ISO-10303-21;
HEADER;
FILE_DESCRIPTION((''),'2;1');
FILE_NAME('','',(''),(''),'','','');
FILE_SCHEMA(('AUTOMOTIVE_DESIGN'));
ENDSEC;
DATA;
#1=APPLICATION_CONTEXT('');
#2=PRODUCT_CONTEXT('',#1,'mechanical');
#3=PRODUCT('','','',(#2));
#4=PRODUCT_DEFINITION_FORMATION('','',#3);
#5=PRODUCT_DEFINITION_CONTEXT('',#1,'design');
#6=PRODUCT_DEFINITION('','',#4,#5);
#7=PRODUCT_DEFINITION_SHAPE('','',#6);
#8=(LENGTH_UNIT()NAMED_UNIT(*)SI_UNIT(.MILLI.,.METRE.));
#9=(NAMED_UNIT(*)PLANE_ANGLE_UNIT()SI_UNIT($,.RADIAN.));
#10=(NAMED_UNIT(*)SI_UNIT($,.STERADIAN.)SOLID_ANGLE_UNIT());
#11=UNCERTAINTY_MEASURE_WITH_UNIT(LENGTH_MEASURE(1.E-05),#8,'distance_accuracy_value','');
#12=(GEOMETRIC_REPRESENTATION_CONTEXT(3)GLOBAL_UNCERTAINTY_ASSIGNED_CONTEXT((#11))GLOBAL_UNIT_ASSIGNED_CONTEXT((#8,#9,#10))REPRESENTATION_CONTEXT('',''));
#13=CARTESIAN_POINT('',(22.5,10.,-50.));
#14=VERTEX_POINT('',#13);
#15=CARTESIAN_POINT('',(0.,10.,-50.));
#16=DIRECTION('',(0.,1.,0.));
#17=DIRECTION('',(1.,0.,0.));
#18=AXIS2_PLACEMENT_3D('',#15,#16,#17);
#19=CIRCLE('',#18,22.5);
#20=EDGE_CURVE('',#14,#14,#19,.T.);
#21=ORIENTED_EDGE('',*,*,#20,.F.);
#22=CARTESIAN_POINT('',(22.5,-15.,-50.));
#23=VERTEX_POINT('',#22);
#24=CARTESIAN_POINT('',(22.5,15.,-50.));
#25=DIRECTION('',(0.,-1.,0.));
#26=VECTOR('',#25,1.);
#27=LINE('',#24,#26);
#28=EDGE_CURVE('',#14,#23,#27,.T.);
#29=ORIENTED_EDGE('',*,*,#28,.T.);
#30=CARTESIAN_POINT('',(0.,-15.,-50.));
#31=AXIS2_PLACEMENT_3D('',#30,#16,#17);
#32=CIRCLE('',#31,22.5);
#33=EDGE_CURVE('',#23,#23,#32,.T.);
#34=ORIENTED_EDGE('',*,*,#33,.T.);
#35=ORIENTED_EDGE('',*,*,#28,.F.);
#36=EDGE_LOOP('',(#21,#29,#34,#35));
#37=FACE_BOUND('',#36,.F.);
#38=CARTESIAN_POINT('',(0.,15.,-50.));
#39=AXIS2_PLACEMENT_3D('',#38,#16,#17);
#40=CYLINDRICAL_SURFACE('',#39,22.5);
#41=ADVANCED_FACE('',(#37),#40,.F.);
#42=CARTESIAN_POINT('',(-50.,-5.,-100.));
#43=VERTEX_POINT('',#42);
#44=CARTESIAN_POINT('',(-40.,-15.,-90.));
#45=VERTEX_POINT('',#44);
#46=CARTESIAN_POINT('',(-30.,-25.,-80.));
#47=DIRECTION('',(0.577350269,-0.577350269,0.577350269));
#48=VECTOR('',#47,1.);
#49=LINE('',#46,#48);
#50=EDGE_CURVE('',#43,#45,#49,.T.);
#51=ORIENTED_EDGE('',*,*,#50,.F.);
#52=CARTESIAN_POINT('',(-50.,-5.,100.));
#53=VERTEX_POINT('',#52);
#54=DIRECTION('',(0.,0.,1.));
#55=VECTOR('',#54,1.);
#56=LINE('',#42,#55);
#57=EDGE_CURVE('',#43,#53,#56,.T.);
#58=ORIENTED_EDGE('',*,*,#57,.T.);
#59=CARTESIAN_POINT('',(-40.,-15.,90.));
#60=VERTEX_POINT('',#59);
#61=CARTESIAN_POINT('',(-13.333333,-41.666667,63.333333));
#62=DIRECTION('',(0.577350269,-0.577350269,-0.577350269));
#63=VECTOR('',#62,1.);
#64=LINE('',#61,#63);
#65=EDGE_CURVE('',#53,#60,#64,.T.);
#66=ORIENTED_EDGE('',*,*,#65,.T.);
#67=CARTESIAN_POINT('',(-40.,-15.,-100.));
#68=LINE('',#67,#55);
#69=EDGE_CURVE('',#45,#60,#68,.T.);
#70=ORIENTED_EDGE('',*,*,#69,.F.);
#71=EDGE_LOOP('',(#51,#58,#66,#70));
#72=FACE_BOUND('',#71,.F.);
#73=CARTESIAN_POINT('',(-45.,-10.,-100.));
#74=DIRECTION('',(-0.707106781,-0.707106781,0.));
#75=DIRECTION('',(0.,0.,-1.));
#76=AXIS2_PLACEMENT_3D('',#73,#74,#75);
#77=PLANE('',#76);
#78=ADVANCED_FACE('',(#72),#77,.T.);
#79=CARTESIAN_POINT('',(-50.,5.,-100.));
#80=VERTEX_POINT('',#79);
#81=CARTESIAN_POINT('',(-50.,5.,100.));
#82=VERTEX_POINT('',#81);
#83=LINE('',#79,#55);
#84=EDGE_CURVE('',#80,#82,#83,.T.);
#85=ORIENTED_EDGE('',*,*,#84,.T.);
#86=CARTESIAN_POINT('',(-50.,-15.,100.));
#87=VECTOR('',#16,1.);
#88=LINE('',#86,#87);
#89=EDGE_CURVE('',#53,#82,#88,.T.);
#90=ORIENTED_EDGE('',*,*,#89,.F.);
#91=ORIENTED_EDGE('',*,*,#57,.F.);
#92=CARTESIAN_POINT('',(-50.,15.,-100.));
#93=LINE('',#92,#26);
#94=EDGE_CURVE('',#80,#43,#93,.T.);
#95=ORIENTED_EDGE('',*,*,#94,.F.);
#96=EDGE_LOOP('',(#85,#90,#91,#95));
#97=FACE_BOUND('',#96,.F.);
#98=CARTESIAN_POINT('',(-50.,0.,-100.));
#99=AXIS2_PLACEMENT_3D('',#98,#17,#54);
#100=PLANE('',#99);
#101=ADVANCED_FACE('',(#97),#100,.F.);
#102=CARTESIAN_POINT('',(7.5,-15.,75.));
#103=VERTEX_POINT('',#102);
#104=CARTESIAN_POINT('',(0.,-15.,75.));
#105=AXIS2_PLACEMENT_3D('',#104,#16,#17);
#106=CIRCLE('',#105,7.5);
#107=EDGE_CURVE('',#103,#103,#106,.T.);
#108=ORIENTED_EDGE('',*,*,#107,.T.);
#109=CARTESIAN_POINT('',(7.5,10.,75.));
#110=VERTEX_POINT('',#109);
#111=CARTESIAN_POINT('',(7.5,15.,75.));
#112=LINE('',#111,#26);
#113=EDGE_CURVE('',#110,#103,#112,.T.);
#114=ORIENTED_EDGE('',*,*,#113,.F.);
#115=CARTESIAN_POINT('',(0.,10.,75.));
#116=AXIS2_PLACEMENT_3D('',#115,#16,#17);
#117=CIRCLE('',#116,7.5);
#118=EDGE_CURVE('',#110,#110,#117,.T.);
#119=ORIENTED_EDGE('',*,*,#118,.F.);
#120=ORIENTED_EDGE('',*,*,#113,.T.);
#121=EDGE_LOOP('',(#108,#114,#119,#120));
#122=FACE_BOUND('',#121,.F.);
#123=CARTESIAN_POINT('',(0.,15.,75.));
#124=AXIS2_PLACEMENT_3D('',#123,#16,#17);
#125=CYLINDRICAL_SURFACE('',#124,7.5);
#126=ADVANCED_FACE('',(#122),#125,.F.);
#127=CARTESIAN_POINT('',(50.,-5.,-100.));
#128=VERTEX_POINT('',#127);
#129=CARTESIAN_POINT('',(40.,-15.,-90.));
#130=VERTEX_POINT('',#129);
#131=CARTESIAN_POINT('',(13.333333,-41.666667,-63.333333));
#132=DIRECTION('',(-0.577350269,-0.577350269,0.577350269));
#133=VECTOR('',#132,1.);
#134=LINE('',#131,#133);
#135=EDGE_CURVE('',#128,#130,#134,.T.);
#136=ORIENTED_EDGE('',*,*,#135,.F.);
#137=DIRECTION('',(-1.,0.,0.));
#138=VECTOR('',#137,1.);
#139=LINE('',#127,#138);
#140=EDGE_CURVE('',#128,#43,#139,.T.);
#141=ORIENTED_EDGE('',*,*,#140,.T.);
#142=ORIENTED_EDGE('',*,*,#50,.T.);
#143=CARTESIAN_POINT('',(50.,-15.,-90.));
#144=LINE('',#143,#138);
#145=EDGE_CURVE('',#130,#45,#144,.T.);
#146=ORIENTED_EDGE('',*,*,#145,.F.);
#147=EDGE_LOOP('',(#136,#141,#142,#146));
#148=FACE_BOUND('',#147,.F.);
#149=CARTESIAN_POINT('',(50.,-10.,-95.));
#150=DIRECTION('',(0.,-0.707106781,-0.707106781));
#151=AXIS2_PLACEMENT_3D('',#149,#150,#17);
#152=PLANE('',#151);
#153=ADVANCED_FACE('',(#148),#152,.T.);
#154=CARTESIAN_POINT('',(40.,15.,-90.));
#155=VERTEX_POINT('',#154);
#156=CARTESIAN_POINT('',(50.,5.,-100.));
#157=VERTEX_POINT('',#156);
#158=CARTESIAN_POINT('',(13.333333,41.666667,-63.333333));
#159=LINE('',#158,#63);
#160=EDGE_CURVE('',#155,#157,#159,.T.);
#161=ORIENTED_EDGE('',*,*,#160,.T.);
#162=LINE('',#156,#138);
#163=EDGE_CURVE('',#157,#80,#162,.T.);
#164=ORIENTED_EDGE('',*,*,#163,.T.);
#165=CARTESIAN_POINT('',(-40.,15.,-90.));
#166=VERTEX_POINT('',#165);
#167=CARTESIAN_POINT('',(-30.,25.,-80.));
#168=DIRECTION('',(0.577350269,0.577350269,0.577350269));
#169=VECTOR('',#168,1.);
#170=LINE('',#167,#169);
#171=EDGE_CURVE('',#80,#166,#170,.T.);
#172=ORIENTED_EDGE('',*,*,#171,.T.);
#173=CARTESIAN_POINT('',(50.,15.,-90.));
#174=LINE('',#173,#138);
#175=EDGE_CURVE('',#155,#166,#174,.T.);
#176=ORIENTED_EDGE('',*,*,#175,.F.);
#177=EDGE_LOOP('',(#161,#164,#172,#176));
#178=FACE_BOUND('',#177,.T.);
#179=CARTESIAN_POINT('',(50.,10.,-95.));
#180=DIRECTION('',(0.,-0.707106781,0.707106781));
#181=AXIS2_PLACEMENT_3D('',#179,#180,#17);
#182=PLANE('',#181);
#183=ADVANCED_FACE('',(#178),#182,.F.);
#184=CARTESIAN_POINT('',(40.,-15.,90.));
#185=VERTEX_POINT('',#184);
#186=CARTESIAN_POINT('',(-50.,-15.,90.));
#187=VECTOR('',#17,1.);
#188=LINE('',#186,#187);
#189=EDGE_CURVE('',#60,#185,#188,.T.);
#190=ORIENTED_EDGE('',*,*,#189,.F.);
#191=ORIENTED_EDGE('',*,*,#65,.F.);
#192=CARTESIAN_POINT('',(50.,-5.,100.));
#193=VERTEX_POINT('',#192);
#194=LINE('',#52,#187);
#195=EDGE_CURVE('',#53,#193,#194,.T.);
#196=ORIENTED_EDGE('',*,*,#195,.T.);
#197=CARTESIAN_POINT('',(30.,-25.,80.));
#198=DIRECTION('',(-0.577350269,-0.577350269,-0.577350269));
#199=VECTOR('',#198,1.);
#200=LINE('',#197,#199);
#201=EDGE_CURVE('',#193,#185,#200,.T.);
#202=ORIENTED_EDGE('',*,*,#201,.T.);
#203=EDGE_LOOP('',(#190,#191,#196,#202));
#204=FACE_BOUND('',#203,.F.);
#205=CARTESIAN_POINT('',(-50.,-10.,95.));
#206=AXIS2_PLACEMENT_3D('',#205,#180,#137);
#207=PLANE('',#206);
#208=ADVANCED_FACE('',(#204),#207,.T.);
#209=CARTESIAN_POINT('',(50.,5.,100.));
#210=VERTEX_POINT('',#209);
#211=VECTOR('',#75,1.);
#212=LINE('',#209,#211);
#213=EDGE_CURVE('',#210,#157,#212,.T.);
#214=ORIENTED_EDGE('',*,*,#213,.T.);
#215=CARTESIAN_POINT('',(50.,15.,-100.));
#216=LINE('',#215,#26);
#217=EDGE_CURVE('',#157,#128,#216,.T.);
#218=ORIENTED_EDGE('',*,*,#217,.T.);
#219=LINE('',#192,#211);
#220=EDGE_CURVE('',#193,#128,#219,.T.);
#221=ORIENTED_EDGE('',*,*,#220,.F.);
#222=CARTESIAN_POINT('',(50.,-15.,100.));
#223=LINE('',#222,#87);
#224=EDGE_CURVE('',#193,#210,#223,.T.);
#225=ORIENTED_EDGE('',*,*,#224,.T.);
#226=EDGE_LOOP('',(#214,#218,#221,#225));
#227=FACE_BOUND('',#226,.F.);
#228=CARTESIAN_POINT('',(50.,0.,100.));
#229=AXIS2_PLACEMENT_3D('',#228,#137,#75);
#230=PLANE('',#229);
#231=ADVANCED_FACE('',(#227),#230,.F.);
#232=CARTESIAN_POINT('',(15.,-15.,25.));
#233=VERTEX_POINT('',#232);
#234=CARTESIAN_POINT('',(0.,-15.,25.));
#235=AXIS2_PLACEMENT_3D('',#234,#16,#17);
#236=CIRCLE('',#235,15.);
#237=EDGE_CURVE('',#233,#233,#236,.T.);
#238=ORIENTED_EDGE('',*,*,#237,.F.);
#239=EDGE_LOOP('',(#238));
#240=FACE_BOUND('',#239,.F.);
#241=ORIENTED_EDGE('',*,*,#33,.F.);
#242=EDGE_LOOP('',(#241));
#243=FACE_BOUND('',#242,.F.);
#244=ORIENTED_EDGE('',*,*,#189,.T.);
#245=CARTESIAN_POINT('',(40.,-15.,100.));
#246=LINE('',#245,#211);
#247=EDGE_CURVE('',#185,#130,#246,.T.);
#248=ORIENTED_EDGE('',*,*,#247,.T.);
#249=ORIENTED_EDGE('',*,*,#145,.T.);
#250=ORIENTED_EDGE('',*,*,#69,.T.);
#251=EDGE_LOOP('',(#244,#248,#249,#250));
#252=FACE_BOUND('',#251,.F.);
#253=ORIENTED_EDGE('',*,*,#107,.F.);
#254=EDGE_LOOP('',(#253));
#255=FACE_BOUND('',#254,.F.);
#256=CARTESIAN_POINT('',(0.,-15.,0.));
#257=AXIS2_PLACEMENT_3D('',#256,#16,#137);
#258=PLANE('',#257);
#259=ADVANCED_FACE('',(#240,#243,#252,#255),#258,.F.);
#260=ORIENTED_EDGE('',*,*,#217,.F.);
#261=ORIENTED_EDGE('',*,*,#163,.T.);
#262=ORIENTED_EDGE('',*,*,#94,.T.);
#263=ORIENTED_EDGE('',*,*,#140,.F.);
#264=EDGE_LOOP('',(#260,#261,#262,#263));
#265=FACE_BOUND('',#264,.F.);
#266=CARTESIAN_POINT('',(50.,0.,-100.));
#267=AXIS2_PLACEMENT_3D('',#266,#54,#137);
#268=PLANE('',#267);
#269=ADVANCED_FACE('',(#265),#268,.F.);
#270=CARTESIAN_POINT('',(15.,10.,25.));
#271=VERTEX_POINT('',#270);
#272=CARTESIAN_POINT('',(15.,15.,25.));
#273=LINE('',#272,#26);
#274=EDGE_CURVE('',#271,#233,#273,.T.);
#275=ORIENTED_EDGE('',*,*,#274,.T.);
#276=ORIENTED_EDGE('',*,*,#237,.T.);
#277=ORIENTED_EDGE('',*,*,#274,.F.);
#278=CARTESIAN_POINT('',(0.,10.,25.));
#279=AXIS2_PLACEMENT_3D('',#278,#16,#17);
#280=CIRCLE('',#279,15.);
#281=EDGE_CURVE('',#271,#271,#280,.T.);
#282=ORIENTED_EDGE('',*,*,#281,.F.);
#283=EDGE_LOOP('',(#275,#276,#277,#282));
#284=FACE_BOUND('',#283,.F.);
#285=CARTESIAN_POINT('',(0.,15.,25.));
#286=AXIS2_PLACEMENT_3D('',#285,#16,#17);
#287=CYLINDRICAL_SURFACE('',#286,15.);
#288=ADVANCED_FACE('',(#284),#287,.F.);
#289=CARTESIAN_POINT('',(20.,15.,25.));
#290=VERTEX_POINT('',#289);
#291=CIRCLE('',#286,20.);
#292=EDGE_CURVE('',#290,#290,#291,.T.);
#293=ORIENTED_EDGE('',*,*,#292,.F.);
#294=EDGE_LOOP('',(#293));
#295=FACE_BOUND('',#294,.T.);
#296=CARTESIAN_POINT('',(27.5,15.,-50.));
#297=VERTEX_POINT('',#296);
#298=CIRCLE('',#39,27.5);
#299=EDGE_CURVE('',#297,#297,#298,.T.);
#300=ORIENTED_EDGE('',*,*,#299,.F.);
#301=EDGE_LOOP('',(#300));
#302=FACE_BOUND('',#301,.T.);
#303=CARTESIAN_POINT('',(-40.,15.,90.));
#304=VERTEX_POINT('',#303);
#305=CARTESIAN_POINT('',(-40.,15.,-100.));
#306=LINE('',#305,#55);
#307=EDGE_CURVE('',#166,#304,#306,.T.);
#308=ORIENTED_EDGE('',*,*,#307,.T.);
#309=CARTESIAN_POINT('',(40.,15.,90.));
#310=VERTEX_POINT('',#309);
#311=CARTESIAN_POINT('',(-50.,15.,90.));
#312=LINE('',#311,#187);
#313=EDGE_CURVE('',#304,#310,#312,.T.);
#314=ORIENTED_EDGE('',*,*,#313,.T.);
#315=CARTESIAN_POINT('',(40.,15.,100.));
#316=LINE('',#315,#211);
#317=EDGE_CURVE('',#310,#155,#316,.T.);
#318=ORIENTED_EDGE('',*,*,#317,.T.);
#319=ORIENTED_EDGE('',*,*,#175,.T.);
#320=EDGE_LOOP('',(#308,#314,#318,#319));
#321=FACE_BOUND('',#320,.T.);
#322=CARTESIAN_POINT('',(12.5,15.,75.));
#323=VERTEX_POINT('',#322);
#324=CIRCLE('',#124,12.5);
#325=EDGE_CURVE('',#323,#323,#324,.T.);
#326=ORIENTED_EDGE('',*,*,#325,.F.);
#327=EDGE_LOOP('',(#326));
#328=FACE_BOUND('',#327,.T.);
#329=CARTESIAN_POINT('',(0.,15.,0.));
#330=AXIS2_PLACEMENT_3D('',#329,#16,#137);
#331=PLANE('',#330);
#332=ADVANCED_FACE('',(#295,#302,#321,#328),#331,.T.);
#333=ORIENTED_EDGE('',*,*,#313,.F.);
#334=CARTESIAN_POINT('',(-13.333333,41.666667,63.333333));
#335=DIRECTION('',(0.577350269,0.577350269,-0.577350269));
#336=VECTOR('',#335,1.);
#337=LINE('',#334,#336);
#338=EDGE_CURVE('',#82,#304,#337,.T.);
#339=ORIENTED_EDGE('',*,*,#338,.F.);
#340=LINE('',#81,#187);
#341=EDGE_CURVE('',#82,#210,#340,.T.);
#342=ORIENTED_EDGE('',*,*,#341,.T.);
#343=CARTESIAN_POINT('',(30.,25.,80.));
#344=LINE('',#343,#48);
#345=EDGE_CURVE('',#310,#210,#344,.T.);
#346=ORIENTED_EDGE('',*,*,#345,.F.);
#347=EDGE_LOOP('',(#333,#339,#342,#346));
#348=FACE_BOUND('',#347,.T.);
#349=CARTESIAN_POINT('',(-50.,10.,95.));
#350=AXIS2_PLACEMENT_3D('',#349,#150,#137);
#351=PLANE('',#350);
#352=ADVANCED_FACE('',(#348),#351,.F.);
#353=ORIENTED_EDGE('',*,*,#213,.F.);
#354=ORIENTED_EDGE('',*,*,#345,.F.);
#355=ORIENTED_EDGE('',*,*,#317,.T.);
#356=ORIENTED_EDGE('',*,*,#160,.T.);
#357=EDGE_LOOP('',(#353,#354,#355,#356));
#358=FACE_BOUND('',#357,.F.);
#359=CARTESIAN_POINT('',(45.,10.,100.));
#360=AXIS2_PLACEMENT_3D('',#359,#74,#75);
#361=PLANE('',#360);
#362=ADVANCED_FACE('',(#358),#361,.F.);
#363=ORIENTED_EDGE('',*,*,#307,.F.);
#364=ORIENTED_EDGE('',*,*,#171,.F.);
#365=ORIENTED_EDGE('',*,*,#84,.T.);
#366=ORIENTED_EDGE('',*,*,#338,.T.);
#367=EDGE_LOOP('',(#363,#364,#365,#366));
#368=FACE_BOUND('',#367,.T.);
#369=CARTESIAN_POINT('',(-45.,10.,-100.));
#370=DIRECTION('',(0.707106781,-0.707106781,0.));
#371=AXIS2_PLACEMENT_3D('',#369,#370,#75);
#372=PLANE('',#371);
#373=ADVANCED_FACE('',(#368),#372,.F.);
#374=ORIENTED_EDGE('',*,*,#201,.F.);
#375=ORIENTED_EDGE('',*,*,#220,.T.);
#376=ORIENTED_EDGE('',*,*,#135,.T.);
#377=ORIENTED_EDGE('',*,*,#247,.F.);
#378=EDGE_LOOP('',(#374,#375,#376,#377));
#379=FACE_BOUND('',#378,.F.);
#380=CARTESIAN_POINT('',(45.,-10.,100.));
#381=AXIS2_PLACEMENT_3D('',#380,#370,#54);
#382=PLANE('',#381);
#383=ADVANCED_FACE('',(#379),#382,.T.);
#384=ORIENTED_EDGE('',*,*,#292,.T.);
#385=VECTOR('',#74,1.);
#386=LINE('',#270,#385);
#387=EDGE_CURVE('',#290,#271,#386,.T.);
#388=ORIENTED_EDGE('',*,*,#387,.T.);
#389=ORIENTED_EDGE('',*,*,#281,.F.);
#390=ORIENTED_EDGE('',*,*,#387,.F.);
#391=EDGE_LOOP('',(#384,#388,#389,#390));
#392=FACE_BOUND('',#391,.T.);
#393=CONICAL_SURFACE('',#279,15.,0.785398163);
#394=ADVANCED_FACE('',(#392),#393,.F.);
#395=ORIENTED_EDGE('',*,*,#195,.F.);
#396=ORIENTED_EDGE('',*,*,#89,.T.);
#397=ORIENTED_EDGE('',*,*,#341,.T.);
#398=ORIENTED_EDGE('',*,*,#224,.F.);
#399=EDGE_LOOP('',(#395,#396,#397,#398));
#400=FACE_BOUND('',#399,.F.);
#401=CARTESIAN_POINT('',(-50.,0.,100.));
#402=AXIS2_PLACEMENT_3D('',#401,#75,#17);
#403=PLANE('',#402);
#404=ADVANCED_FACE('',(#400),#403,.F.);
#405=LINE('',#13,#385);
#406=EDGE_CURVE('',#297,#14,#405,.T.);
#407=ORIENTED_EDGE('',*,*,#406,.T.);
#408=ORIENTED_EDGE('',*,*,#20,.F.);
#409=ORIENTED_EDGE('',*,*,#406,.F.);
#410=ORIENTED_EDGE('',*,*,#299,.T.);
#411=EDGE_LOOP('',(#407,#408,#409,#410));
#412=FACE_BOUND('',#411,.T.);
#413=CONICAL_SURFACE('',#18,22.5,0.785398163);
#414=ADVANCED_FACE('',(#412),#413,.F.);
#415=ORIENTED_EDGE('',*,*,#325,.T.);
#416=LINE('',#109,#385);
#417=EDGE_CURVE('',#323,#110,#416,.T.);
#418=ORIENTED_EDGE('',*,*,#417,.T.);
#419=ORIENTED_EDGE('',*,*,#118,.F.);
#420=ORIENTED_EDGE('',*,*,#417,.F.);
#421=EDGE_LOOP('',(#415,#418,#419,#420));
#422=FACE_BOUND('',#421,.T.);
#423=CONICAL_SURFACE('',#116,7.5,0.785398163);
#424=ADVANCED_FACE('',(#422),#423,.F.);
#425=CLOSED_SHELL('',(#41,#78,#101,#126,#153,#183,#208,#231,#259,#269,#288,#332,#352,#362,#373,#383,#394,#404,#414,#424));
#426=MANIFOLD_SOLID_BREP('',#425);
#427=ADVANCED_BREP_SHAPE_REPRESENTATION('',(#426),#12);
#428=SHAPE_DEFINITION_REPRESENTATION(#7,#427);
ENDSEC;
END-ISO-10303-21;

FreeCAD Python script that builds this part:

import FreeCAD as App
import Part
import Sketcher
from FreeCAD import Vector
Q = App.Units.Quantity


def edges_at(feature, points):
    """Names of the edges that pass closest to the given points."""
    edges = feature.Shape.Edges
    near = lambda p: min(range(len(edges)), key=lambda i: edges[i].distToShape(Part.Vertex(*p))[0])
    return sorted({f"Edge{near(p) + 1}" for p in points})


def add_polygon(sketch, points):
    """Adds a closed chain of lines whose ends are joined by coincident constraints."""
    first, n = sketch.GeometryCount, len(points)
    for a, b in zip(points, points[1:] + points[:1]):
        sketch.addGeometry(Part.LineSegment(App.Vector(*a, 0), App.Vector(*b, 0)), False)
    for i in range(n):
        sketch.addConstraint(Sketcher.Constraint("Coincident", first + i, 2, first + (i + 1) % n, 1))

doc = App.newDocument("Part")
body = doc.addObject("PartDesign::Body", "Body")

sketch1 = body.newObject("Sketcher::SketchObject", "Sketch")
sketch1.AttachmentSupport = (doc.getObject("XZ_Plane"), [""])
sketch1.MapMode = "FlatFace"
add_polygon(sketch1, [(-50, -100), (-50, 100), (50, 100), (50, -100)])
sketch1.addConstraint([
    Sketcher.Constraint("Vertical", 0),
    Sketcher.Constraint("Horizontal", 1),
    Sketcher.Constraint("Vertical", 2),
    Sketcher.Constraint("Horizontal", 3),
    Sketcher.Constraint("Symmetric", 0, 2, 2, 2, -1, 1),
    Sketcher.Constraint("DistanceX", 1, 1, 1, 2, Q("100 mm")),
    Sketcher.Constraint("DistanceY", 0, 1, 0, 2, Q("200 mm")),
])
pad1 = body.newObject("PartDesign::Pad", "Pad")
pad1.Profile = sketch1
pad1.Length = 30
pad1.Midplane = True
doc.recompute()

chamfer = body.newObject("PartDesign::Chamfer", "Chamfer")
chamfer.Base = (pad1, edges_at(pad1, [
    (50, 15, 0),
    (0, 15, 100),
    (-50, 15, 0),
    (0, 15, -100),
    (0, -15, -100),
    (50, -15, 0),
    (-50, -15, 0),
    (0, -15, 100),
]))
chamfer.Size = 10

sketch2 = body.newObject("Sketcher::SketchObject", "Sketch001")
sketch2.AttachmentSupport = (doc.getObject("XZ_Plane"), [""])
sketch2.MapMode = "FlatFace"
sketch2.AttachmentOffset = App.Placement(Vector(0, 0, -15), App.Rotation())
sketch2.addGeometry([
    Part.Circle(Vector(0, -50, 0), Vector(0, 0, 1), 22),
    Part.Circle(Vector(0, 25, 0), Vector(0, 0, 1), 15),
    Part.Circle(Vector(0, 75, 0), Vector(0, 0, 1), 8),
], False)
sketch2.addConstraint([
    Sketcher.Constraint("PointOnObject", 0, 3, -2),
    Sketcher.Constraint("PointOnObject", 1, 3, -2),
    Sketcher.Constraint("PointOnObject", 2, 3, -2),
    Sketcher.Constraint("Diameter", 0, Q("45 mm")),
    Sketcher.Constraint("Diameter", 1, Q("30 mm")),
    Sketcher.Constraint("Diameter", 2, Q("15 mm")),
    Sketcher.Constraint("DistanceY", 0, 3, -1, 1, Q("50 mm")),
    Sketcher.Constraint("DistanceY", -1, 1, 1, 3, Q("25 mm")),
    Sketcher.Constraint("DistanceY", -1, 1, 2, 3, Q("75 mm")),
])
pocket1 = body.newObject("PartDesign::Pocket", "Pocket")
pocket1.Profile = sketch2
pocket1.Type = "ThroughAll"
pocket1.Reversed = True
doc.recompute()

chamfer2 = body.newObject("PartDesign::Chamfer", "Chamfer001")
chamfer2.Base = (pocket1, edges_at(pocket1, [(-7.5, 15, 75), (-15, 15, 25), (-22.5, 15, -50)]))
chamfer2.Size = 5

doc.recompute()
